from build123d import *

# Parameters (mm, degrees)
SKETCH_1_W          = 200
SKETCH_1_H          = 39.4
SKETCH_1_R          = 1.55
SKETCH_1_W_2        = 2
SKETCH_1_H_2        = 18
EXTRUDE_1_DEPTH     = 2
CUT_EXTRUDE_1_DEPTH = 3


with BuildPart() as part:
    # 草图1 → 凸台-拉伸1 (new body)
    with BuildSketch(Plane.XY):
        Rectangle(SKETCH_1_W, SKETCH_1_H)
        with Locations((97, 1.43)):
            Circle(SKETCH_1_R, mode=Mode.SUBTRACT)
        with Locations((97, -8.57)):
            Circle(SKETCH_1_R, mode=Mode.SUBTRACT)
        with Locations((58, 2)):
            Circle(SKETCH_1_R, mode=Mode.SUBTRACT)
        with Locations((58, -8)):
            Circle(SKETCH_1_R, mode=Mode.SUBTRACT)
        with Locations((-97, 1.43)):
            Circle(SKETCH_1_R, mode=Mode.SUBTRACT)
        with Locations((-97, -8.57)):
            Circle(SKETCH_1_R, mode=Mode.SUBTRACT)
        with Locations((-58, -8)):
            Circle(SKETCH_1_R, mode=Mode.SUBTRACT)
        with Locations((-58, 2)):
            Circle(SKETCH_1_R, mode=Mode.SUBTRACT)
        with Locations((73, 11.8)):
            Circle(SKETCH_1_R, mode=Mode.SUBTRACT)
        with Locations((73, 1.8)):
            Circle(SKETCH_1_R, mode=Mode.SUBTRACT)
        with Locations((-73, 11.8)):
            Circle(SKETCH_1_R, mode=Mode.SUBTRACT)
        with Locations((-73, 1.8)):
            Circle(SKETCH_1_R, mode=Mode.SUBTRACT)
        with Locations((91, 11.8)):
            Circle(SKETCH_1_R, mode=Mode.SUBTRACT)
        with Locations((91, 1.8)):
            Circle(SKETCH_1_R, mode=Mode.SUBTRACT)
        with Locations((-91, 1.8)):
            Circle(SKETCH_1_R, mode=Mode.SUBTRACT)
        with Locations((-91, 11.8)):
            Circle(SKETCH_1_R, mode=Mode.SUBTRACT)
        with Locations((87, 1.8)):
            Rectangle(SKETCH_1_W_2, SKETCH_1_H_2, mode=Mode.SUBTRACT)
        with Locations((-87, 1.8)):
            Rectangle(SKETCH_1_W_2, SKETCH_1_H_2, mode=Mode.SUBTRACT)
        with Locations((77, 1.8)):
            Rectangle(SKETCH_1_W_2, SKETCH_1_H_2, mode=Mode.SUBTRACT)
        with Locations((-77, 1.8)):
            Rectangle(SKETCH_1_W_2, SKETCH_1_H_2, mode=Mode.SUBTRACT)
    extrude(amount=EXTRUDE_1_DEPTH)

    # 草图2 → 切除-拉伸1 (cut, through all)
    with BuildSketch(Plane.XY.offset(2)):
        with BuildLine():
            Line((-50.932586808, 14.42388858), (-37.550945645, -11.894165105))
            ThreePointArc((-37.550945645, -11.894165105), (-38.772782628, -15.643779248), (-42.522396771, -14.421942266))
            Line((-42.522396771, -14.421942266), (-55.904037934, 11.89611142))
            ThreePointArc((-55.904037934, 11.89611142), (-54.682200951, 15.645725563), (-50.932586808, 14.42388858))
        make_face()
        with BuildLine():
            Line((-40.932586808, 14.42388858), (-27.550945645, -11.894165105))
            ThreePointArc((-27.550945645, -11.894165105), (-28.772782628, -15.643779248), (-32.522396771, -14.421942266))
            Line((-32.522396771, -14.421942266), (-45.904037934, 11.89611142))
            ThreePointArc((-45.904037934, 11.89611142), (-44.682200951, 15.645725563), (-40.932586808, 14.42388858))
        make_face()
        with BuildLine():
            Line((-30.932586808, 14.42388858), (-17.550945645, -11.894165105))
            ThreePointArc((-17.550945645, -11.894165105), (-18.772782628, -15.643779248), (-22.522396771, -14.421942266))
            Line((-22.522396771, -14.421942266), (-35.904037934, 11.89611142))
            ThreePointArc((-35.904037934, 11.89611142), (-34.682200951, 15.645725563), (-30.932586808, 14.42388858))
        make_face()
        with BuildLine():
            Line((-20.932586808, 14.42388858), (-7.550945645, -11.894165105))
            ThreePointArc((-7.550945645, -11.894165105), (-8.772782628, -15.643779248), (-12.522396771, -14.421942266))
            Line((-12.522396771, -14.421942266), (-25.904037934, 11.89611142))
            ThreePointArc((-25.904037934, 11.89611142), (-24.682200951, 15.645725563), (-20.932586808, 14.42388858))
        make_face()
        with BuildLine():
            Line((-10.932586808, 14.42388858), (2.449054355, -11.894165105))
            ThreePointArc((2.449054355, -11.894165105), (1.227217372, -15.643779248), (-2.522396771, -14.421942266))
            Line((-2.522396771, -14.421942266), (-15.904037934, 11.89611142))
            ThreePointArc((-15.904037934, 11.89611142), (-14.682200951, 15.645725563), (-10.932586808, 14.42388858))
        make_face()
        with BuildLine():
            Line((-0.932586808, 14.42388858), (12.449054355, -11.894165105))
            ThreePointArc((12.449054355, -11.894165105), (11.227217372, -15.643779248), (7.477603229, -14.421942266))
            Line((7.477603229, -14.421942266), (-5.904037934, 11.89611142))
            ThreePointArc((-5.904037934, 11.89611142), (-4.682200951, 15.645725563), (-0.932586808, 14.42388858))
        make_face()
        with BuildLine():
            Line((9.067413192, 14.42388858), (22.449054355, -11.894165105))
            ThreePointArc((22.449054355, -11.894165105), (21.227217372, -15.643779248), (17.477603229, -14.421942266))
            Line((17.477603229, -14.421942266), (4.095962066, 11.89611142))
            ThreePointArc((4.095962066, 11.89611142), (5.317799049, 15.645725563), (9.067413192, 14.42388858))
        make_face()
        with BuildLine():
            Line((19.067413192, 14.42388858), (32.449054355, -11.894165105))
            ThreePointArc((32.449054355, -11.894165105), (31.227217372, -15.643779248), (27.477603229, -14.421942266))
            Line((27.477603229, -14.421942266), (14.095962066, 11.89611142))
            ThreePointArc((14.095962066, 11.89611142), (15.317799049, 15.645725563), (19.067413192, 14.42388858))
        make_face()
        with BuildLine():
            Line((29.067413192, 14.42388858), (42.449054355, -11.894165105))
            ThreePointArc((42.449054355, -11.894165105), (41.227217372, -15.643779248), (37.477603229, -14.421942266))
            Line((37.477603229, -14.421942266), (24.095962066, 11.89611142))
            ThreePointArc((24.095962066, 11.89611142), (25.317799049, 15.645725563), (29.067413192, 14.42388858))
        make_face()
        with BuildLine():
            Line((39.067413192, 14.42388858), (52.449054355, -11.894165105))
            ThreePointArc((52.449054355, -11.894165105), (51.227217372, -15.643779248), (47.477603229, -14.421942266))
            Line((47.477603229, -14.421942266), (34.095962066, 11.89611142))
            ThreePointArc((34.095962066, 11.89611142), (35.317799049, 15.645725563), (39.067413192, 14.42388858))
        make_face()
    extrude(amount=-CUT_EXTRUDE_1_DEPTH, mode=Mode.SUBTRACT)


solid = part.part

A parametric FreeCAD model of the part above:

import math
import FreeCAD as App
import Part
import Sketcher

V = App.Vector


def add_polygon(sketch, points):
    """Adds a closed chain of lines whose ends are joined by coincident constraints."""
    first, n = sketch.GeometryCount, len(points)
    for a, b in zip(points, points[1:] + points[:1]):
        sketch.addGeometry(Part.LineSegment(App.Vector(*a, 0), App.Vector(*b, 0)), False)
    for i in range(n):
        sketch.addConstraint(Sketcher.Constraint("Coincident", first + i, 2, first + (i + 1) % n, 1))

doc = App.newDocument("Part")
body = doc.addObject("PartDesign::Body", "Body")

# Sketch on XY plane
sketch1 = body.newObject("Sketcher::SketchObject", "Sketch")
sketch1.AttachmentSupport = (doc.getObject("XY_Plane"), [""])
sketch1.MapMode = "FlatFace"
add_polygon(sketch1, [(-100, 19.7), (-100, -19.7), (100, -19.7), (100, 19.7)])  # lines 0-3
sketch1.addGeometry(Part.Circle(V(-97, -8.57, 0), V(0, 0, 1), 1.55), False)  # 4
sketch1.addGeometry(Part.Circle(V(-58, -8, 0), V(0, 0, 1), 1.55), False)  # 5
sketch1.addGeometry(Part.Circle(V(-97, 1.43, 0), V(0, 0, 1), 1.55), False)  # 6
sketch1.addGeometry(Part.Circle(V(58, -8, 0), V(0, 0, 1), 1.55), False)  # 7
sketch1.addGeometry(Part.Circle(V(97, -8.57, 0), V(0, 0, 1), 1.55), False)  # 8
sketch1.addGeometry(Part.Circle(V(97, 1.43, 0), V(0, 0, 1), 1.55), False)  # 9
sketch1.addGeometry(Part.Circle(V(-91, 1.8, 0), V(0, 0, 1), 1.55), False)  # 10
add_polygon(sketch1, [(-86, -7.2), (-88, -7.2), (-88, 10.8), (-86, 10.8)])  # lines 11-14
add_polygon(sketch1, [(-76, -7.2), (-78, -7.2), (-78, 10.8), (-76, 10.8)])  # lines 15-18
sketch1.addGeometry(Part.Circle(V(-73, 1.8, 0), V(0, 0, 1), 1.55), False)  # 19
sketch1.addGeometry(Part.Circle(V(-58, 2, 0), V(0, 0, 1), 1.55), False)  # 20
sketch1.addGeometry(Part.Circle(V(-91, 11.8, 0), V(0, 0, 1), 1.55), False)  # 21
sketch1.addGeometry(Part.Circle(V(-73, 11.8, 0), V(0, 0, 1), 1.55), False)  # 22
sketch1.addGeometry(Part.Circle(V(58, 2, 0), V(0, 0, 1), 1.55), False)  # 23
sketch1.addGeometry(Part.Circle(V(73, 1.8, 0), V(0, 0, 1), 1.55), False)  # 24
add_polygon(sketch1, [(78, -7.2), (76, -7.2), (76, 10.8), (78, 10.8)])  # lines 25-28
add_polygon(sketch1, [(88, -7.2), (86, -7.2), (86, 10.8), (88, 10.8)])  # lines 29-32
sketch1.addGeometry(Part.Circle(V(91, 1.8, 0), V(0, 0, 1), 1.55), False)  # 33
sketch1.addGeometry(Part.Circle(V(73, 11.8, 0), V(0, 0, 1), 1.55), False)  # 34
sketch1.addGeometry(Part.Circle(V(91, 11.8, 0), V(0, 0, 1), 1.55), False)  # 35
sketch1.addConstraint([
    Sketcher.Constraint("Vertical", 0),
    Sketcher.Constraint("Horizontal", 1),
    Sketcher.Constraint("Vertical", 2),
    Sketcher.Constraint("Horizontal", 3),
    Sketcher.Constraint("Horizontal", 11),
    Sketcher.Constraint("Vertical", 12),
    Sketcher.Constraint("Horizontal", 13),
    Sketcher.Constraint("Vertical", 14),
    Sketcher.Constraint("Horizontal", 15),
    Sketcher.Constraint("Vertical", 16),
    Sketcher.Constraint("Horizontal", 17),
    Sketcher.Constraint("Vertical", 18),
    Sketcher.Constraint("Horizontal", 25),
    Sketcher.Constraint("Vertical", 26),
    Sketcher.Constraint("Horizontal", 27),
    Sketcher.Constraint("Vertical", 28),
    Sketcher.Constraint("Horizontal", 29),
    Sketcher.Constraint("Vertical", 30),
    Sketcher.Constraint("Horizontal", 31),
    Sketcher.Constraint("Vertical", 32),
    Sketcher.Constraint("Equal", 4, 5),
    Sketcher.Constraint("Equal", 5, 6),
    Sketcher.Constraint("Equal", 6, 7),
    Sketcher.Constraint("Equal", 7, 8),
    Sketcher.Constraint("Equal", 8, 9),
    Sketcher.Constraint("Equal", 9, 10),
    Sketcher.Constraint("Equal", 10, 19),
    Sketcher.Constraint("Equal", 19, 20),
    Sketcher.Constraint("Equal", 20, 21),
    Sketcher.Constraint("Equal", 21, 22),
    Sketcher.Constraint("Equal", 22, 23),
    Sketcher.Constraint("Equal", 23, 24),
    Sketcher.Constraint("Equal", 24, 33),
    Sketcher.Constraint("Equal", 33, 34),
    Sketcher.Constraint("Equal", 34, 35),
    Sketcher.Constraint("Symmetric", 0, 2, 2, 2, -1, 1),
    Sketcher.Constraint("Symmetric", 5, 3, 7, 3, -2),
    Sketcher.Constraint("Symmetric", 4, 3, 8, 3, -2),
    Sketcher.Constraint("Symmetric", 6, 3, 9, 3, -2),
    Sketcher.Constraint("Symmetric", 20, 3, 23, 3, -2),
    Sketcher.Constraint("Symmetric", 19, 3, 24, 3, -2),
    Sketcher.Constraint("Symmetric", 10, 3, 33, 3, -2),
    Sketcher.Constraint("Symmetric", 22, 3, 34, 3, -2),
    Sketcher.Constraint("Symmetric", 21, 3, 35, 3, -2),
    Sketcher.Constraint("Symmetric", 18, 2, 25, 2, -2),
    Sketcher.Constraint("Symmetric", 16, 2, 27, 2, -2),
    Sketcher.Constraint("Symmetric", 14, 2, 29, 2, -2),
    Sketcher.Constraint("Symmetric", 12, 2, 31, 2, -2),
    Sketcher.Constraint("Horizontal", 10, 3, 19, 3),
    Sketcher.Constraint("Horizontal", 21, 3, 22, 3),
    Sketcher.Constraint("Horizontal", 14, 2, 15, 2),
    Sketcher.Constraint("Horizontal", 13, 2, 16, 2),
    Sketcher.Constraint("Vertical", 4, 3, 6, 3),
    Sketcher.Constraint("Vertical", 5, 3, 20, 3),
    Sketcher.Constraint("Vertical", 10, 3, 21, 3),
    Sketcher.Constraint("Vertical", 19, 3, 22, 3),
    Sketcher.Constraint("Equal", 13, 15),
    Sketcher.Constraint("Diameter", 4, 3.1),
    Sketcher.Constraint("DistanceX", 1, 1, 1, 2, 200.0),
    Sketcher.Constraint("DistanceX", 11, 2, 11, 1, 2.0),
    Sketcher.Constraint("DistanceY", 12, 1, 12, 2, 18.0),
    Sketcher.Constraint("DistanceY", 0, 2, 0, 1, 39.4),
    Sketcher.Constraint("DistanceX", 4, 3, -1, 1, 97.0),
    Sketcher.Constraint("DistanceX", 5, 3, -1, 1, 58.0),
    Sketcher.Constraint("DistanceY", 5, 3, -1, 1, 8.0),
    Sketcher.Constraint("DistanceX", 10, 3, -1, 1, 91.0),
    Sketcher.Constraint("DistanceX", 19, 3, -1, 1, 73.0),
    Sketcher.Constraint("DistanceY", -1, 1, 20, 3, 2.0),
    Sketcher.Constraint("DistanceX", 11, 2, -1, 1, 88.0),
    Sketcher.Constraint("DistanceX", 15, 2, -1, 1, 78.0),
    Sketcher.Constraint("DistanceY", 4, 3, 6, 3, 10.0),
    Sketcher.Constraint("DistanceY", 10, 3, 21, 3, 10.0),
    Sketcher.Constraint("DistanceY", 11, 2, 10, 3, 9.0),
    Sketcher.Constraint("DistanceY", -1, 1, 10, 3, 1.8),
    Sketcher.Constraint("DistanceY", 4, 3, -1, 1, 8.57),
])
pad1 = body.newObject("PartDesign::Pad", "Pad")
pad1.Profile = sketch1
pad1.Length = 2

# Sketch on XY plane
sketch2 = body.newObject("Sketcher::SketchObject", "Sketch001")
sketch2.AttachmentSupport = (doc.getObject("XY_Plane"), [""])
sketch2.MapMode = "FlatFace"
sketch2.AttachmentOffset = App.Placement(V(0, 0, 2), App.Rotation())
sketch2.addGeometry([
    Part.LineSegment(V(-37.550946, -11.894165, 0), V(-50.932587, 14.423889, 0)),  # 0
    Part.ArcOfCircle(Part.Circle(V(-53.418312, 13.16, 0), V(0, 0, 1), 2.788592), math.radians(26.951452), math.radians(206.951452)),  # 1
    Part.LineSegment(V(-55.904038, 11.896111, 0), V(-42.522397, -14.421942, 0)),  # 2
    Part.ArcOfCircle(Part.Circle(V(-40.036671, -13.158054, 0), V(0, 0, 1), 2.788592), math.radians(-153.048548), math.radians(26.951452)),  # 3
    Part.LineSegment(V(-27.550946, -11.894165, 0), V(-40.932587, 14.423889, 0)),  # 4
    Part.ArcOfCircle(Part.Circle(V(-43.418312, 13.16, 0), V(0, 0, 1), 2.788592), math.radians(26.951452), math.radians(206.951452)),  # 5
    Part.LineSegment(V(-45.904038, 11.896111, 0), V(-32.522397, -14.421942, 0)),  # 6
    Part.ArcOfCircle(Part.Circle(V(-30.036671, -13.158054, 0), V(0, 0, 1), 2.788592), math.radians(-153.048548), math.radians(26.951452)),  # 7
    Part.LineSegment(V(-17.550946, -11.894165, 0), V(-30.932587, 14.423889, 0)),  # 8
    Part.ArcOfCircle(Part.Circle(V(-33.418312, 13.16, 0), V(0, 0, 1), 2.788592), math.radians(26.951452), math.radians(206.951452)),  # 9
    Part.LineSegment(V(-35.904038, 11.896111, 0), V(-22.522397, -14.421942, 0)),  # 10
    Part.ArcOfCircle(Part.Circle(V(-20.036671, -13.158054, 0), V(0, 0, 1), 2.788592), math.radians(-153.048548), math.radians(26.951452)),  # 11
    Part.LineSegment(V(-7.550946, -11.894165, 0), V(-20.932587, 14.423889, 0)),  # 12
    Part.ArcOfCircle(Part.Circle(V(-23.418312, 13.16, 0), V(0, 0, 1), 2.788592), math.radians(26.951452), math.radians(206.951452)),  # 13
    Part.LineSegment(V(-25.904038, 11.896111, 0), V(-12.522397, -14.421942, 0)),  # 14
    Part.ArcOfCircle(Part.Circle(V(-10.036671, -13.158054, 0), V(0, 0, 1), 2.788592), math.radians(-153.048548), math.radians(26.951452)),  # 15
    Part.LineSegment(V(2.449054, -11.894165, 0), V(-10.932587, 14.423889, 0)),  # 16
    Part.ArcOfCircle(Part.Circle(V(-13.418312, 13.16, 0), V(0, 0, 1), 2.788592), math.radians(26.951452), math.radians(206.951452)),  # 17
    Part.LineSegment(V(-15.904038, 11.896111, 0), V(-2.522397, -14.421942, 0)),  # 18
    Part.ArcOfCircle(Part.Circle(V(-0.036671, -13.158054, 0), V(0, 0, 1), 2.788592), math.radians(-153.048548), math.radians(26.951452)),  # 19
    Part.LineSegment(V(12.449054, -11.894165, 0), V(-0.932587, 14.423889, 0)),  # 20
    Part.ArcOfCircle(Part.Circle(V(-3.418312, 13.16, 0), V(0, 0, 1), 2.788592), math.radians(26.951452), math.radians(206.951452)),  # 21
    Part.LineSegment(V(-5.904038, 11.896111, 0), V(7.477603, -14.421942, 0)),  # 22
    Part.ArcOfCircle(Part.Circle(V(9.963329, -13.158054, 0), V(0, 0, 1), 2.788592), math.radians(-153.048548), math.radians(26.951452)),  # 23
    Part.LineSegment(V(22.449054, -11.894165, 0), V(9.067413, 14.423889, 0)),  # 24
    Part.ArcOfCircle(Part.Circle(V(6.581688, 13.16, 0), V(0, 0, 1), 2.788592), math.radians(26.951452), math.radians(206.951452)),  # 25
    Part.LineSegment(V(4.095962, 11.896111, 0), V(17.477603, -14.421942, 0)),  # 26
    Part.ArcOfCircle(Part.Circle(V(19.963329, -13.158054, 0), V(0, 0, 1), 2.788592), math.radians(-153.048548), math.radians(26.951452)),  # 27
    Part.LineSegment(V(32.449054, -11.894165, 0), V(19.067413, 14.423889, 0)),  # 28
    Part.ArcOfCircle(Part.Circle(V(16.581688, 13.16, 0), V(0, 0, 1), 2.788592), math.radians(26.951452), math.radians(206.951452)),  # 29
    Part.LineSegment(V(14.095962, 11.896111, 0), V(27.477603, -14.421942, 0)),  # 30
    Part.ArcOfCircle(Part.Circle(V(29.963329, -13.158054, 0), V(0, 0, 1), 2.788592), math.radians(-153.048548), math.radians(26.951452)),  # 31
    Part.LineSegment(V(42.449054, -11.894165, 0), V(29.067413, 14.423889, 0)),  # 32
    Part.ArcOfCircle(Part.Circle(V(26.581688, 13.16, 0), V(0, 0, 1), 2.788592), math.radians(26.951452), math.radians(206.951452)),  # 33
    Part.LineSegment(V(24.095962, 11.896111, 0), V(37.477603, -14.421942, 0)),  # 34
    Part.ArcOfCircle(Part.Circle(V(39.963329, -13.158054, 0), V(0, 0, 1), 2.788592), math.radians(-153.048548), math.radians(26.951452)),  # 35
    Part.LineSegment(V(52.449054, -11.894165, 0), V(39.067413, 14.423889, 0)),  # 36
    Part.ArcOfCircle(Part.Circle(V(36.581688, 13.16, 0), V(0, 0, 1), 2.788592), math.radians(26.951452), math.radians(206.951452)),  # 37
    Part.LineSegment(V(34.095962, 11.896111, 0), V(47.477603, -14.421942, 0)),  # 38
    Part.ArcOfCircle(Part.Circle(V(49.963329, -13.158054, 0), V(0, 0, 1), 2.788592), math.radians(-153.048548), math.radians(26.951452)),  # 39
], False)
sketch2.addConstraint([
    Sketcher.Constraint("Tangent", 0, 2, 1, 1),
    Sketcher.Constraint("Tangent", 1, 2, 2, 1),
    Sketcher.Constraint("Tangent", 2, 2, 3, 1),
    Sketcher.Constraint("Tangent", 3, 2, 0, 1),
    Sketcher.Constraint("Tangent", 4, 2, 5, 1),
    Sketcher.Constraint("Tangent", 5, 2, 6, 1),
    Sketcher.Constraint("Tangent", 6, 2, 7, 1),
    Sketcher.Constraint("Tangent", 7, 2, 4, 1),
    Sketcher.Constraint("Tangent", 8, 2, 9, 1),
    Sketcher.Constraint("Tangent", 9, 2, 10, 1),
    Sketcher.Constraint("Tangent", 10, 2, 11, 1),
    Sketcher.Constraint("Tangent", 11, 2, 8, 1),
    Sketcher.Constraint("Tangent", 12, 2, 13, 1),
    Sketcher.Constraint("Tangent", 13, 2, 14, 1),
    Sketcher.Constraint("Tangent", 14, 2, 15, 1),
    Sketcher.Constraint("Tangent", 15, 2, 12, 1),
    Sketcher.Constraint("Tangent", 16, 2, 17, 1),
    Sketcher.Constraint("Tangent", 17, 2, 18, 1),
    Sketcher.Constraint("Tangent", 18, 2, 19, 1),
    Sketcher.Constraint("Tangent", 19, 2, 16, 1),
    Sketcher.Constraint("Tangent", 20, 2, 21, 1),
    Sketcher.Constraint("Tangent", 21, 2, 22, 1),
    Sketcher.Constraint("Tangent", 22, 2, 23, 1),
    Sketcher.Constraint("Tangent", 23, 2, 20, 1),
    Sketcher.Constraint("Tangent", 24, 2, 25, 1),
    Sketcher.Constraint("Tangent", 25, 2, 26, 1),
    Sketcher.Constraint("Tangent", 26, 2, 27, 1),
    Sketcher.Constraint("Tangent", 27, 2, 24, 1),
    Sketcher.Constraint("Tangent", 28, 2, 29, 1),
    Sketcher.Constraint("Tangent", 29, 2, 30, 1),
    Sketcher.Constraint("Tangent", 30, 2, 31, 1),
    Sketcher.Constraint("Tangent", 31, 2, 28, 1),
    Sketcher.Constraint("Tangent", 32, 2, 33, 1),
    Sketcher.Constraint("Tangent", 33, 2, 34, 1),
    Sketcher.Constraint("Tangent", 34, 2, 35, 1),
    Sketcher.Constraint("Tangent", 35, 2, 32, 1),
    Sketcher.Constraint("Tangent", 36, 2, 37, 1),
    Sketcher.Constraint("Tangent", 37, 2, 38, 1),
    Sketcher.Constraint("Tangent", 38, 2, 39, 1),
    Sketcher.Constraint("Tangent", 39, 2, 36, 1),
    Sketcher.Constraint("Equal", 1, 3),
    Sketcher.Constraint("Equal", 3, 5),
    Sketcher.Constraint("Equal", 5, 7),
    Sketcher.Constraint("Equal", 7, 9),
    Sketcher.Constraint("Equal", 9, 11),
    Sketcher.Constraint("Equal", 11, 13),
    Sketcher.Constraint("Equal", 13, 15),
    Sketcher.Constraint("Equal", 15, 17),
    Sketcher.Constraint("Equal", 17, 19),
    Sketcher.Constraint("Equal", 19, 21),
    Sketcher.Constraint("Equal", 21, 23),
    Sketcher.Constraint("Equal", 23, 25),
    Sketcher.Constraint("Equal", 25, 27),
    Sketcher.Constraint("Equal", 27, 29),
    Sketcher.Constraint("Equal", 29, 31),
    Sketcher.Constraint("Equal", 31, 33),
    Sketcher.Constraint("Equal", 33, 35),
    Sketcher.Constraint("Equal", 35, 37),
    Sketcher.Constraint("Equal", 37, 39),
    Sketcher.Constraint("Parallel", 2, 4),
    Sketcher.Constraint("Parallel", 6, 8),
    Sketcher.Constraint("Parallel", 10, 12),
    Sketcher.Constraint("Parallel", 14, 16),
    Sketcher.Constraint("Parallel", 18, 20),
    Sketcher.Constraint("Parallel", 22, 24),
    Sketcher.Constraint("Parallel", 26, 28),
    Sketcher.Constraint("Parallel", 30, 32),
    Sketcher.Constraint("Parallel", 34, 36),
    Sketcher.Constraint("Horizontal", 1, 3, 5, 3),
    Sketcher.Constraint("Horizontal", 3, 3, 7, 3),
    Sketcher.Constraint("Horizontal", 5, 3, 9, 3),
    Sketcher.Constraint("Horizontal", 7, 3, 11, 3),
    Sketcher.Constraint("Horizontal", 9, 3, 13, 3),
    Sketcher.Constraint("Horizontal", 11, 3, 15, 3),
    Sketcher.Constraint("Horizontal", 13, 3, 17, 3),
    Sketcher.Constraint("Horizontal", 15, 3, 19, 3),
    Sketcher.Constraint("Horizontal", 17, 3, 21, 3),
    Sketcher.Constraint("Horizontal", 19, 3, 23, 3),
    Sketcher.Constraint("Horizontal", 21, 3, 25, 3),
    Sketcher.Constraint("Horizontal", 23, 3, 27, 3),
    Sketcher.Constraint("Horizontal", 25, 3, 29, 3),
    Sketcher.Constraint("Horizontal", 27, 3, 31, 3),
    Sketcher.Constraint("Horizontal", 29, 3, 33, 3),
    Sketcher.Constraint("Horizontal", 31, 3, 35, 3),
    Sketcher.Constraint("Horizontal", 33, 3, 37, 3),
    Sketcher.Constraint("Horizontal", 35, 3, 39, 3),
    Sketcher.Constraint("DistanceX", 1, 3, 5, 3, 10.0),
    Sketcher.Constraint("DistanceX", 5, 3, 9, 3, 10.0),
    Sketcher.Constraint("DistanceX", 9, 3, 13, 3, 10.0),
    Sketcher.Constraint("DistanceX", 13, 3, 17, 3, 10.0),
    Sketcher.Constraint("DistanceX", 17, 3, 21, 3, 10.0),
    Sketcher.Constraint("DistanceX", 21, 3, 25, 3, 10.0),
    Sketcher.Constraint("DistanceX", 25, 3, 29, 3, 10.0),
    Sketcher.Constraint("DistanceX", 29, 3, 33, 3, 10.0),
    Sketcher.Constraint("DistanceX", 33, 3, 37, 3, 10.0),
    Sketcher.Constraint("DistanceY", -1, 1, 1, 3, 13.16),
    Sketcher.Constraint("Radius", 1, 2.788592),
    Sketcher.Constraint("DistanceX", 3, 3, -1, 1, 40.036671),
    Sketcher.Constraint("DistanceY", -1, 1, 0, 2, 14.423889),
    Sketcher.Constraint("DistanceX", 1, 3, 3, 3, 13.381641),
])
pocket1 = body.newObject("PartDesign::Pocket", "Pocket")
pocket1.Profile = sketch2
pocket1.Type = "ThroughAll"

doc.recompute()
